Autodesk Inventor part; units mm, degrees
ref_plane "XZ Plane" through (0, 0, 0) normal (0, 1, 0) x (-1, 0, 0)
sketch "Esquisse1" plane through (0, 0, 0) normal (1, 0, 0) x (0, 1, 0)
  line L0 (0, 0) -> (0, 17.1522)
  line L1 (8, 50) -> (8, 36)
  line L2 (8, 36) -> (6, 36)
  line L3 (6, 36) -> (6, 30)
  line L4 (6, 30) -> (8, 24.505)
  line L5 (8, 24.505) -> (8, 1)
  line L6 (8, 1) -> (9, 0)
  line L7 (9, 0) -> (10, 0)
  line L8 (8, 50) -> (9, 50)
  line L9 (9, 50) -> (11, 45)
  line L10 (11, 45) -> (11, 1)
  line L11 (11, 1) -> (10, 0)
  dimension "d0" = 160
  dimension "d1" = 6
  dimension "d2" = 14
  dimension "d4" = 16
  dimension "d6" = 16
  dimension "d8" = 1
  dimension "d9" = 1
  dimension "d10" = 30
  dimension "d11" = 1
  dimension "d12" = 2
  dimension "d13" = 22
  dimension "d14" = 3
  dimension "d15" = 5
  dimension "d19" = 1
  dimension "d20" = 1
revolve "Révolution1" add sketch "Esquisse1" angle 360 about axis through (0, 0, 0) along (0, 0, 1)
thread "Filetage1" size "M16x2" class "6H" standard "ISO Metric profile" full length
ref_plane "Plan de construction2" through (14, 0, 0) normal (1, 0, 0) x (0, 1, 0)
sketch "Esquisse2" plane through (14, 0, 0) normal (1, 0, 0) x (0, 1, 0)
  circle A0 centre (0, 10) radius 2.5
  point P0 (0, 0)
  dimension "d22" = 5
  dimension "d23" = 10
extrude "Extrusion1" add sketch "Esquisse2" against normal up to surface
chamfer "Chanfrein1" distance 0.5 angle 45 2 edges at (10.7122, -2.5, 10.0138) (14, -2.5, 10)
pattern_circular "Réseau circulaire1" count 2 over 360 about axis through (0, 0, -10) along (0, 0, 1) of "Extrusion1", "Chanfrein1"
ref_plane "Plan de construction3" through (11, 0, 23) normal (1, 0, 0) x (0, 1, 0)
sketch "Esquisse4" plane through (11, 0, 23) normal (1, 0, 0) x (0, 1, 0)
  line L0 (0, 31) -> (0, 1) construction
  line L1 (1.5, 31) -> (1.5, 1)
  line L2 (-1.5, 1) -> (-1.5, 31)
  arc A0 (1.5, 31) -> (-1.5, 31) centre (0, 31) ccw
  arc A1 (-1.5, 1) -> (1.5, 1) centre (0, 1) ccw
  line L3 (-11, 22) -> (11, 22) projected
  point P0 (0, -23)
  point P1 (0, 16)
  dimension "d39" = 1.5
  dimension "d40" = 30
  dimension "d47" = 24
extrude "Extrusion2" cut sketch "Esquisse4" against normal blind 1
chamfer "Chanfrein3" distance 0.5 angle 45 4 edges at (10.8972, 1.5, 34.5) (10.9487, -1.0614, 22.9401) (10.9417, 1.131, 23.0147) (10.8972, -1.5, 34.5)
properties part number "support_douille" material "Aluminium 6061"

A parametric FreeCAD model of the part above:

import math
import FreeCAD as App
import Part
import Sketcher

V = App.Vector
Q = App.Units.Quantity


def edges_at(feature, points):
    """Names of the edges that pass closest to the given points."""
    edges = feature.Shape.Edges
    near = lambda p: min(range(len(edges)), key=lambda i: edges[i].distToShape(Part.Vertex(*p))[0])
    return sorted({f"Edge{near(p) + 1}" for p in points})


def add_polygon(sketch, points):
    """Adds a closed chain of lines whose ends are joined by coincident constraints."""
    first, n = sketch.GeometryCount, len(points)
    for a, b in zip(points, points[1:] + points[:1]):
        sketch.addGeometry(Part.LineSegment(App.Vector(*a, 0), App.Vector(*b, 0)), False)
    for i in range(n):
        sketch.addConstraint(Sketcher.Constraint("Coincident", first + i, 2, first + (i + 1) % n, 1))

doc = App.newDocument("Part")
body = doc.addObject("PartDesign::Body", "Body")

# Sketch on YZ plane
sketch1 = doc.addObject("Sketcher::SketchObject", "Sketch")
body.addObject(sketch1)
sketch1.AttachmentSupport = (doc.YZ_Plane, [""])
sketch1.MapMode = "FlatFace"
add_polygon(sketch1, [(9, 50), (8, 50), (8, 36), (6, 36), (6, 30), (8, 24.505), (8, 1), (9, 0), (10, 0), (11, 1), (11, 45)])  # lines 0-10
sketch1.addConstraint(Sketcher.Constraint("Horizontal", 0))
sketch1.addConstraint(Sketcher.Constraint("Vertical", 1))
sketch1.addConstraint(Sketcher.Constraint("Horizontal", 2))
sketch1.addConstraint(Sketcher.Constraint("Vertical", 3))
sketch1.addConstraint(Sketcher.Constraint("Vertical", 5))
sketch1.addConstraint(Sketcher.Constraint("Horizontal", 7))
sketch1.addConstraint(Sketcher.Constraint("Vertical", 9))
sketch1.addConstraint(Sketcher.Constraint("PointOnObject", 6, 2, -1))
sketch1.addConstraint(Sketcher.Constraint("Perpendicular", 6, 8))
sketch1.addConstraint(Sketcher.Constraint("Horizontal", 5, 2, 8, 2))
sketch1.addConstraint(Sketcher.Constraint("Vertical", 1, 2, 4, 2))
sketch1.addConstraint(Sketcher.Constraint("Vertical", 6, 2, 10, 2))
sketch1.addConstraint(Sketcher.Constraint("Equal", 0, 7))
sketch1.addConstraint(Sketcher.Constraint("Equal", 6, 8))
sketch1.addConstraint(Sketcher.Constraint("DistanceX", 0, 2, 0, 1, Q("1 mm")))
sketch1.addConstraint(Sketcher.Constraint("DistanceX", 2, 2, 2, 1, Q("2 mm")))
sketch1.addConstraint(Sketcher.Constraint("DistanceY", 1, 2, 1, 1, Q("14 mm")))
sketch1.addConstraint(Sketcher.Constraint("DistanceY", 3, 2, 3, 1, Q("6 mm")))
sketch1.addConstraint(Sketcher.Constraint("DistanceX", -1, 1, 2, 2, Q("6 mm")))
sketch1.addConstraint(Sketcher.Constraint("DistanceY", -1, 1, 3, 2, Q("30 mm")))
sketch1.addConstraint(Sketcher.Constraint("DistanceY", 9, 2, 0, 2, Q("5 mm")))
sketch1.addConstraint(Sketcher.Constraint("Angle", 4, Q("-70.0002 deg")))
revolution = doc.addObject("PartDesign::Revolution", "Revolution")
body.addObject(revolution)
revolution.Profile = sketch1
revolution.ReferenceAxis = (sketch1, ["V_Axis"])
revolution.Angle = 360

# Sketch on YZ plane
sketch2 = doc.addObject("Sketcher::SketchObject", "Sketch001")
body.addObject(sketch2)
sketch2.AttachmentSupport = (doc.YZ_Plane, [""])
sketch2.MapMode = "FlatFace"
sketch2.AttachmentOffset = App.Placement(V(0, 0, 14), App.Rotation())
sketch2.addGeometry(Part.Circle(V(0, 10, 0), V(0, 0, 1), 2.5), False)
sketch2.addConstraint(Sketcher.Constraint("PointOnObject", 0, 3, -2))
sketch2.addConstraint(Sketcher.Constraint("Diameter", 0, Q("5 mm")))
sketch2.addConstraint(Sketcher.Constraint("DistanceY", -1, 1, 0, 3, Q("10 mm")))
pad1 = doc.addObject("PartDesign::Pad", "Pad")
body.addObject(pad1)
pad1.Profile = sketch2
pad1.Type = "UpToFirst"
pad1.Reversed = True
doc.recompute()

chamfer = doc.addObject("PartDesign::Chamfer", "Chamfer")
body.addObject(chamfer)
chamfer.Base = (pad1, edges_at(pad1, [(10.712, -2.5, 10.014), (14, -2.5, 10)]))
chamfer.Size = 0.5
doc.recompute()

polarpattern = doc.addObject("PartDesign::PolarPattern", "PolarPattern")
body.addObject(polarpattern)
polarpattern.Originals = [pad1, chamfer]
polarpattern.Axis = (doc.Z_Axis, [""])
polarpattern.Angle = 360
polarpattern.Occurrences = 2
body.Tip = polarpattern

# Sketch on YZ plane
sketch3 = doc.addObject("Sketcher::SketchObject", "Sketch002")
body.addObject(sketch3)
sketch3.AttachmentSupport = (doc.YZ_Plane, [""])
sketch3.MapMode = "FlatFace"
sketch3.AttachmentOffset = App.Placement(V(0, 0, 11), App.Rotation())
sketch3.addGeometry(Part.ArcOfCircle(Part.Circle(V(0, 54, 0), V(0, 0, 1), 1.5), math.radians(0), math.radians(180)), False)
sketch3.addGeometry(Part.LineSegment(V(-1.5, 54, 0), V(-1.5, 24, 0)), False)
sketch3.addGeometry(Part.ArcOfCircle(Part.Circle(V(0, 24, 0), V(0, 0, 1), 1.5), math.radians(180), math.radians(360)), False)
sketch3.addGeometry(Part.LineSegment(V(1.5, 24, 0), V(1.5, 54, 0)), False)
sketch3.addConstraint(Sketcher.Constraint("Tangent", 0, 2, 1, 1))
sketch3.addConstraint(Sketcher.Constraint("Tangent", 1, 2, 2, 1))
sketch3.addConstraint(Sketcher.Constraint("Tangent", 2, 2, 3, 1))
sketch3.addConstraint(Sketcher.Constraint("Tangent", 3, 2, 0, 1))
sketch3.addConstraint(Sketcher.Constraint("Vertical", 1))
sketch3.addConstraint(Sketcher.Constraint("Vertical", 3))
sketch3.addConstraint(Sketcher.Constraint("PointOnObject", 0, 3, -2))
sketch3.addConstraint(Sketcher.Constraint("Radius", 0, Q("1.5 mm")))
sketch3.addConstraint(Sketcher.Constraint("DistanceY", 1, 2, 1, 1, Q("30 mm")))
sketch3.addConstraint(Sketcher.Constraint("DistanceY", -1, 1, 2, 3, Q("24 mm")))
pocket1 = doc.addObject("PartDesign::Pocket", "Pocket")
body.addObject(pocket1)
pocket1.Profile = sketch3
pocket1.Length = 1
doc.recompute()

chamfer2 = doc.addObject("PartDesign::Chamfer", "Chamfer001")
body.addObject(chamfer2)
chamfer2.Base = (pocket1, edges_at(pocket1, [
    (10.897, 1.5, 34.5),
    (10.949, -1.061, 22.94),
    (10.942, 1.131, 23.015),
    (10.897, -1.5, 34.5),
]))
chamfer2.Size = 0.5

doc.recompute()
